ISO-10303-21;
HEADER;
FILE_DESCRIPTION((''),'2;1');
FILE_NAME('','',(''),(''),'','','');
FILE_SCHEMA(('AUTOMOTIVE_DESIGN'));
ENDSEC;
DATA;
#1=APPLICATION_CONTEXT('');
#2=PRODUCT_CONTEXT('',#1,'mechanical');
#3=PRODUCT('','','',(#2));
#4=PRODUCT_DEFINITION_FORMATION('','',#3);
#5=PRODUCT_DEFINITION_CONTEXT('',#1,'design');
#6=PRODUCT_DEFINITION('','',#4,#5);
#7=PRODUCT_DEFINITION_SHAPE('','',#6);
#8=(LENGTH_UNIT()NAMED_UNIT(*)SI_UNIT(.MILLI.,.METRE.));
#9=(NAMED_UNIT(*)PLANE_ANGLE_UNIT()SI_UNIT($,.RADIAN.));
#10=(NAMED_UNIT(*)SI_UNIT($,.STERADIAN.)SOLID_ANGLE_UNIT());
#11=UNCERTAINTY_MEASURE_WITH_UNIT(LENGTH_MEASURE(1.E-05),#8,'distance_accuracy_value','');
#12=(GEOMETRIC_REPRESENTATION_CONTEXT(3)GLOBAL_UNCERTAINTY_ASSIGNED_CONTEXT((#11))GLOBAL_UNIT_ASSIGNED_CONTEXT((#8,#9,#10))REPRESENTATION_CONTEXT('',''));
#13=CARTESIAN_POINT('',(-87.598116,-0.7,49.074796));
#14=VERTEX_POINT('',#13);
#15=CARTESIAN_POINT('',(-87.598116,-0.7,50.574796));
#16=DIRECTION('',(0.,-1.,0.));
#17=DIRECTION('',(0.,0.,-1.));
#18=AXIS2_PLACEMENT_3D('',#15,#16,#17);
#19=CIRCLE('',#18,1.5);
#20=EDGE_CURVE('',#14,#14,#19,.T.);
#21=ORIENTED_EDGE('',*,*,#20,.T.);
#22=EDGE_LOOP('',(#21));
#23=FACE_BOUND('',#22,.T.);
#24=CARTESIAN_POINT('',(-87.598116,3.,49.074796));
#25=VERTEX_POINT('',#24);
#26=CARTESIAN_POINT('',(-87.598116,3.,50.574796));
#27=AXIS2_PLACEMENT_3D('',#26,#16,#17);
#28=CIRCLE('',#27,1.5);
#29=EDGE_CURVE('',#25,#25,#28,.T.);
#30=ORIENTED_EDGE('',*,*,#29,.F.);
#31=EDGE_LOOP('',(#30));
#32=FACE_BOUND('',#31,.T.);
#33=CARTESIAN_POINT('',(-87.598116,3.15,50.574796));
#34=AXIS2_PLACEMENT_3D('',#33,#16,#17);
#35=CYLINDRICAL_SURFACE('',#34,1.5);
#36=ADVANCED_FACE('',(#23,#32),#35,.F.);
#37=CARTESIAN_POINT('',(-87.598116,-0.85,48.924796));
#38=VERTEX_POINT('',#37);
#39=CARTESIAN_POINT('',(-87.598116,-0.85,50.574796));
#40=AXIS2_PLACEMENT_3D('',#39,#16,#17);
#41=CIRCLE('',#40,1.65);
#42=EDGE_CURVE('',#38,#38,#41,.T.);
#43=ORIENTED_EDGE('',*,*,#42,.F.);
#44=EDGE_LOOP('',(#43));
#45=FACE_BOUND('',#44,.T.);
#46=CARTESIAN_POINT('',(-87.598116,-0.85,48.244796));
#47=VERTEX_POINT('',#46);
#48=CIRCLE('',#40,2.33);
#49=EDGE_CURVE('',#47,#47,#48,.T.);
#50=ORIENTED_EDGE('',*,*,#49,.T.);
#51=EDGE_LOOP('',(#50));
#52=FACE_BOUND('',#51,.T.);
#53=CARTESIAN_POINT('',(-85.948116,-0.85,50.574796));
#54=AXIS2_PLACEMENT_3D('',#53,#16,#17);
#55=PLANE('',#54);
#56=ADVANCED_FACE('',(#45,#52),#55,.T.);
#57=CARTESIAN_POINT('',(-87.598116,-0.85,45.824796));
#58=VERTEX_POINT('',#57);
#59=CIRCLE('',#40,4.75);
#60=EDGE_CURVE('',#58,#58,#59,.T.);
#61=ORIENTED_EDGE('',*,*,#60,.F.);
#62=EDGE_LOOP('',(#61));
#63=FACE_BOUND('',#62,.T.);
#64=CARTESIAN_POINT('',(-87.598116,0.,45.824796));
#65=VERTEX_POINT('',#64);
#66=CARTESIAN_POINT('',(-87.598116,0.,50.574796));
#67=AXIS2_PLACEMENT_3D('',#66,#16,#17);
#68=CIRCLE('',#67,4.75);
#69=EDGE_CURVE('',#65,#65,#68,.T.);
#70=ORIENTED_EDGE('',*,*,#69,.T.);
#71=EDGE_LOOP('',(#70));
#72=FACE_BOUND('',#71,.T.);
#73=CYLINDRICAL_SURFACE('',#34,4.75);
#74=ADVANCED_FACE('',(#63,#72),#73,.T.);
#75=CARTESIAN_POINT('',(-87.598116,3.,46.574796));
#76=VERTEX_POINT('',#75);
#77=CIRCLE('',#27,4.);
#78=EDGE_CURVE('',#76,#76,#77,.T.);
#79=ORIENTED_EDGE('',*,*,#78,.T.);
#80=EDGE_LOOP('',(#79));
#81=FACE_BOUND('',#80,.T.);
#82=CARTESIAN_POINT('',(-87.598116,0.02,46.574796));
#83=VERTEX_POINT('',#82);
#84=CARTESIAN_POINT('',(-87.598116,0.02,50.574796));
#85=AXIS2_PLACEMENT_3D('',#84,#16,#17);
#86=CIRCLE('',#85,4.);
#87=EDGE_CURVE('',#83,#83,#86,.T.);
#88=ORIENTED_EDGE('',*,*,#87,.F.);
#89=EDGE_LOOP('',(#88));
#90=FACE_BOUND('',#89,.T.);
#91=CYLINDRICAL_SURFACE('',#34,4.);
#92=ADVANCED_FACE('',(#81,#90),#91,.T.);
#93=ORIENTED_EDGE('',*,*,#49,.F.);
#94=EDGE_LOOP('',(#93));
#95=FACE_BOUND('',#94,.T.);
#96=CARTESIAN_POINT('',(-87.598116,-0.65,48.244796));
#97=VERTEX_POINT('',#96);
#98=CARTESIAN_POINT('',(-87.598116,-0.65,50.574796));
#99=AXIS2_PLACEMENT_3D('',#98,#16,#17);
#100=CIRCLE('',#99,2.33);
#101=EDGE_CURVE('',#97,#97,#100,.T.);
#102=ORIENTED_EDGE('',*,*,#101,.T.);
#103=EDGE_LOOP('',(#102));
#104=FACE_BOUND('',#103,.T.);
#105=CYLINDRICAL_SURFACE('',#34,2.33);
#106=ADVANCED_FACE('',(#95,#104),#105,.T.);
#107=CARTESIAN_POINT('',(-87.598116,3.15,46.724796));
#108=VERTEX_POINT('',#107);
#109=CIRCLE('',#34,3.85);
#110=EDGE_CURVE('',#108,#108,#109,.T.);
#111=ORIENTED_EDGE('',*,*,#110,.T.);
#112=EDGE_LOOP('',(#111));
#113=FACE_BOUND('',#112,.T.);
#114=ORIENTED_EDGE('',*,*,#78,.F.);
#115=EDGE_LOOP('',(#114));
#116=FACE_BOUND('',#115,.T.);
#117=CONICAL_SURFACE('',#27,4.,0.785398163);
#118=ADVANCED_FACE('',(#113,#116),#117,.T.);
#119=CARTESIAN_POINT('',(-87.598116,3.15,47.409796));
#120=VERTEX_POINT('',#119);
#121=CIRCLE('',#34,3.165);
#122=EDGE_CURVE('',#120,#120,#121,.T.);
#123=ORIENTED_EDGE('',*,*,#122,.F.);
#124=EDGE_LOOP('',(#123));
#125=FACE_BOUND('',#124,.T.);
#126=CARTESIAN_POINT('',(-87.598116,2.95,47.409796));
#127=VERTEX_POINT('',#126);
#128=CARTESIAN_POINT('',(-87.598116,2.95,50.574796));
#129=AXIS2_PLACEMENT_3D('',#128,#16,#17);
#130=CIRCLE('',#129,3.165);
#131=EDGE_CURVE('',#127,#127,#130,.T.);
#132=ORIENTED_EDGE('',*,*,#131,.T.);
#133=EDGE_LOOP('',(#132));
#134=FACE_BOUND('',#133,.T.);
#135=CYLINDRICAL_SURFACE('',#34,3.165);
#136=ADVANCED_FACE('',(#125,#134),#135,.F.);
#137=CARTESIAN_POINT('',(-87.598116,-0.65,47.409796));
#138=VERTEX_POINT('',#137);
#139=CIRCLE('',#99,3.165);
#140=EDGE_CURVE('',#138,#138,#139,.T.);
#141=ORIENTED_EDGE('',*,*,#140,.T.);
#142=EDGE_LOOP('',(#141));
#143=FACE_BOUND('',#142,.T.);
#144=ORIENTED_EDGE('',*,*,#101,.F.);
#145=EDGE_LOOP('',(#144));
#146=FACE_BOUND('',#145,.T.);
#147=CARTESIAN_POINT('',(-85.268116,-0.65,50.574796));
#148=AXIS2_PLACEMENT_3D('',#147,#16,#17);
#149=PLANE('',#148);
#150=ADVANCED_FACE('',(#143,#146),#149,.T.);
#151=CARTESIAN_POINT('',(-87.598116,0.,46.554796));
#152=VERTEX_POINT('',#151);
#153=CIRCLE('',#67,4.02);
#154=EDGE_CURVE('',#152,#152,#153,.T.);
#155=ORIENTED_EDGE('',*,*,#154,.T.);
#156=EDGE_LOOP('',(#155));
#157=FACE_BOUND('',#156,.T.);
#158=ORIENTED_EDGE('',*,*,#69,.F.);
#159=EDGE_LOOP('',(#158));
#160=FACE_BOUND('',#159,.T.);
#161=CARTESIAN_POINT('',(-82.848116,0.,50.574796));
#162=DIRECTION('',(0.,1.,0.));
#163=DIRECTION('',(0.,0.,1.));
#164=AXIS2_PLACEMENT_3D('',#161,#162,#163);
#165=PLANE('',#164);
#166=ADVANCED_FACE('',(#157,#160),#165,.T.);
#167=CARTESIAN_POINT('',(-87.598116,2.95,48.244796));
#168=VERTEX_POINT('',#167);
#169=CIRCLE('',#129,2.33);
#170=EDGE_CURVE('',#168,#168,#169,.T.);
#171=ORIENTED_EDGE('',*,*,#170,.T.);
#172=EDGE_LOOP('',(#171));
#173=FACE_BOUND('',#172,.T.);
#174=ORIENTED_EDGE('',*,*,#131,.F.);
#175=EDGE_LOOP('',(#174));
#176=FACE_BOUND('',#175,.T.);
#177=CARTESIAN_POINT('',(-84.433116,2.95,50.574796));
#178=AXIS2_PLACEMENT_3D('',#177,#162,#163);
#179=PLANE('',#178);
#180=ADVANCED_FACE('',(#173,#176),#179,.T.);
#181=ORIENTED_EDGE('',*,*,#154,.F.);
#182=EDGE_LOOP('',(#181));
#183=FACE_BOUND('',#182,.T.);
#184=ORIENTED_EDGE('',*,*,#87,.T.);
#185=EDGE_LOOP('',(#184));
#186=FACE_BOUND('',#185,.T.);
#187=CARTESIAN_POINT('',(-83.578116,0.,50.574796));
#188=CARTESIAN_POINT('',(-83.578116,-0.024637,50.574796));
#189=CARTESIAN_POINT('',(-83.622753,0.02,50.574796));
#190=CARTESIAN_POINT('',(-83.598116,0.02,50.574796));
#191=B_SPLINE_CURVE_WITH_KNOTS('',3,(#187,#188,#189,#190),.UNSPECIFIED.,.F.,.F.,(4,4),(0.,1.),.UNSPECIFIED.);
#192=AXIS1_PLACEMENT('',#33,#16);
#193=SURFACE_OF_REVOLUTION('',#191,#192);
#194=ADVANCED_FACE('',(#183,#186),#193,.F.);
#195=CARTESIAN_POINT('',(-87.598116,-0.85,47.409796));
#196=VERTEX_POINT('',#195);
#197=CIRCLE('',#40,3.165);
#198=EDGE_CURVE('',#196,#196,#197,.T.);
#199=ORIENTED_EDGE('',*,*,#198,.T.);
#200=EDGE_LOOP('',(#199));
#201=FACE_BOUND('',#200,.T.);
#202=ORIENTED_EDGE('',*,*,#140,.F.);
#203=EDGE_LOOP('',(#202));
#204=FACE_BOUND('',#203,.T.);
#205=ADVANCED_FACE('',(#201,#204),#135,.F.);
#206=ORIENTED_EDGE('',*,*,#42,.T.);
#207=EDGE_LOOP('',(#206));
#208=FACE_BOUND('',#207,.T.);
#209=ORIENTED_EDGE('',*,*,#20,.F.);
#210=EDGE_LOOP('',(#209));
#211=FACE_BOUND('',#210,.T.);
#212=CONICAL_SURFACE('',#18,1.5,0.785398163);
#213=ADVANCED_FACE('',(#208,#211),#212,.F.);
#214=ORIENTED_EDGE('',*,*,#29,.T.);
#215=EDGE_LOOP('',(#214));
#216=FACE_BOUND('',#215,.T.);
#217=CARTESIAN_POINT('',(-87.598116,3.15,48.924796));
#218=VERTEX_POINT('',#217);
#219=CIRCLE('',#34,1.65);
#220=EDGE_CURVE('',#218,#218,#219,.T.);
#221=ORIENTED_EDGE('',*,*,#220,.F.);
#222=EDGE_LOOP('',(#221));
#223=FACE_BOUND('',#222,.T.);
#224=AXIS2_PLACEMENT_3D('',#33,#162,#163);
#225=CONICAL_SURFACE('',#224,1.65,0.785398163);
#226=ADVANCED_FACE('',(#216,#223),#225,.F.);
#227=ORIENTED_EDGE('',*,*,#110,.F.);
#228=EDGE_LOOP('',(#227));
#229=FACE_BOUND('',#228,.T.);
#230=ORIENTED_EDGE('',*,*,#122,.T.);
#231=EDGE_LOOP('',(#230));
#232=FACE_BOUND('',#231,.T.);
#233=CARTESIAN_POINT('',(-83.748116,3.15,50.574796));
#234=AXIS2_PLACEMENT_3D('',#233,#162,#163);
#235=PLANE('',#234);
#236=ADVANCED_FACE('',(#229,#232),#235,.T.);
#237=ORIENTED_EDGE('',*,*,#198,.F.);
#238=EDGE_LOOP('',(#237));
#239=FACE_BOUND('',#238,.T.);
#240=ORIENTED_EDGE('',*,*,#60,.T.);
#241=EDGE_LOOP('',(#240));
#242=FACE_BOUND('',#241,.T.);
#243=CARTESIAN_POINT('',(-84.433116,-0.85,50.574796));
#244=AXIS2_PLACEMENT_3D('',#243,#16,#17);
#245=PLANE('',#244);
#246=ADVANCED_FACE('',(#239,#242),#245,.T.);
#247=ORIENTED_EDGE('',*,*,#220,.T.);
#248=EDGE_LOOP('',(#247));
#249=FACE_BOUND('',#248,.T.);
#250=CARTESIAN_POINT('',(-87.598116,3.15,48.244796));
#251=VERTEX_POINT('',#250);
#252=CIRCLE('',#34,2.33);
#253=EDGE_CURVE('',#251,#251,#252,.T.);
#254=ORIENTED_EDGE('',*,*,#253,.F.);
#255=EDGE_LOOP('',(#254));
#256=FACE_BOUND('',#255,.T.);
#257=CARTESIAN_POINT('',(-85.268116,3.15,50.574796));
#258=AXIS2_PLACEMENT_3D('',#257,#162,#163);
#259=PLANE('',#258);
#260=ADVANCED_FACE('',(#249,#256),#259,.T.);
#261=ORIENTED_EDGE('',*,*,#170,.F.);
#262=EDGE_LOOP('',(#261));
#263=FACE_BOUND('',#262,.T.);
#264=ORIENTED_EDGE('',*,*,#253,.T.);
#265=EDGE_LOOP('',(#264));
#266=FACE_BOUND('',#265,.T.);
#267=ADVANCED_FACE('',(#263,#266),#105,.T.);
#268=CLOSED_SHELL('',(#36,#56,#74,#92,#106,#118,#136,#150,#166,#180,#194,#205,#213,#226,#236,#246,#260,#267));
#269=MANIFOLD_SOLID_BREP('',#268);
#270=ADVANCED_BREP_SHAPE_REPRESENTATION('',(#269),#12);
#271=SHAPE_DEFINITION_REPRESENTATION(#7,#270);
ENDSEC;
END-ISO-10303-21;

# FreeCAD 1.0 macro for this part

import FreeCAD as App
import Part
import Sketcher
from FreeCAD import Vector

doc = App.newDocument("Part")
body = doc.addObject("PartDesign::Body", "Body")

# Sketch on XY plane
sketch1 = body.newObject("Sketcher::SketchObject", "Sketch")
sketch1.AttachmentSupport = (doc.getObject("XY_Plane"), [""])
sketch1.MapMode = "FlatFace"
sketch1.AttachmentOffset = App.Placement(Vector(0, 0, 50.574796), App.Rotation())
sketch1.addGeometry([
    Part.LineSegment(Vector(-85.268116, -0.65, 0), Vector(-84.433116, -0.65, 0)),  # 0
    Part.LineSegment(Vector(-84.433116, -0.65, 0), Vector(-84.433116, -0.85, 0)),  # 1
    Part.LineSegment(Vector(-84.433116, -0.85, 0), Vector(-82.848116, -0.85, 0)),  # 2
    Part.LineSegment(Vector(-82.848116, -0.85, 0), Vector(-82.848116, 0, 0)),  # 3
    Part.LineSegment(Vector(-82.848116, 0, 0), Vector(-83.578116, 0, 0)),  # 4
    Part.BSplineCurve([Vector(-83.578116, 0, 0), Vector(-83.578116, -0.024637, 0), Vector(-83.622753, 0.02, 0), Vector(-83.598116, 0.02, 0)], [4, 4], [0, 1], False, 3, [1, 1, 1, 1], False),  # 5
    Part.LineSegment(Vector(-83.598116, 0.02, 0), Vector(-83.598116, 3, 0)),  # 6
    Part.LineSegment(Vector(-83.598116, 3, 0), Vector(-83.748116, 3.15, 0)),  # 7
    Part.LineSegment(Vector(-83.748116, 3.15, 0), Vector(-84.433116, 3.15, 0)),  # 8
    Part.LineSegment(Vector(-84.433116, 3.15, 0), Vector(-84.433116, 2.95, 0)),  # 9
    Part.LineSegment(Vector(-84.433116, 2.95, 0), Vector(-85.268116, 2.95, 0)),  # 10
    Part.LineSegment(Vector(-85.268116, 2.95, 0), Vector(-85.268116, 3.15, 0)),  # 11
    Part.LineSegment(Vector(-85.268116, 3.15, 0), Vector(-85.948116, 3.15, 0)),  # 12
    Part.LineSegment(Vector(-85.948116, 3.15, 0), Vector(-86.098116, 3, 0)),  # 13
    Part.LineSegment(Vector(-86.098116, 3, 0), Vector(-86.098116, -0.7, 0)),  # 14
    Part.LineSegment(Vector(-86.098116, -0.7, 0), Vector(-85.948116, -0.85, 0)),  # 15
    Part.LineSegment(Vector(-85.948116, -0.85, 0), Vector(-85.268116, -0.85, 0)),  # 16
    Part.LineSegment(Vector(-85.268116, -0.85, 0), Vector(-85.268116, -0.65, 0)),  # 17
], False)
sketch1.addGeometry(Part.LineSegment(Vector(-87.598116, 3.15, 0), Vector(-87.598116, -0.85, 0)), True)  # axis
sketch1.addConstraint([
    Sketcher.Constraint("Block", 5),
    Sketcher.Constraint("Coincident", 0, 2, 1, 1),
    Sketcher.Constraint("Coincident", 1, 2, 2, 1),
    Sketcher.Constraint("Coincident", 2, 2, 3, 1),
    Sketcher.Constraint("Coincident", 3, 2, 4, 1),
    Sketcher.Constraint("Coincident", 4, 2, 5, 1),
    Sketcher.Constraint("Coincident", 5, 2, 6, 1),
    Sketcher.Constraint("Coincident", 6, 2, 7, 1),
    Sketcher.Constraint("Coincident", 7, 2, 8, 1),
    Sketcher.Constraint("Coincident", 8, 2, 9, 1),
    Sketcher.Constraint("Coincident", 9, 2, 10, 1),
    Sketcher.Constraint("Coincident", 10, 2, 11, 1),
    Sketcher.Constraint("Coincident", 11, 2, 12, 1),
    Sketcher.Constraint("Coincident", 12, 2, 13, 1),
    Sketcher.Constraint("Coincident", 13, 2, 14, 1),
    Sketcher.Constraint("Coincident", 14, 2, 15, 1),
    Sketcher.Constraint("Coincident", 15, 2, 16, 1),
    Sketcher.Constraint("Coincident", 16, 2, 17, 1),
    Sketcher.Constraint("Coincident", 17, 2, 0, 1),
    Sketcher.Constraint("Horizontal", 0),
    Sketcher.Constraint("Vertical", 1),
    Sketcher.Constraint("Horizontal", 2),
    Sketcher.Constraint("Vertical", 3),
    Sketcher.Constraint("Horizontal", 4),
    Sketcher.Constraint("Vertical", 6),
    Sketcher.Constraint("Horizontal", 8),
    Sketcher.Constraint("Vertical", 9),
    Sketcher.Constraint("Horizontal", 10),
    Sketcher.Constraint("Vertical", 11),
    Sketcher.Constraint("Horizontal", 12),
    Sketcher.Constraint("Vertical", 14),
    Sketcher.Constraint("Horizontal", 16),
    Sketcher.Constraint("Vertical", 17),
    Sketcher.Constraint("Vertical", 18),
    Sketcher.Constraint("Perpendicular", 7, 13),
    Sketcher.Constraint("Perpendicular", 13, 15),
    Sketcher.Constraint("Horizontal", 8, 2, 11, 2),
    Sketcher.Constraint("Horizontal", 6, 2, 13, 2),
    Sketcher.Constraint("Horizontal", 2, 2, 15, 2),
    Sketcher.Constraint("Horizontal", 12, 2, 18, 1),
    Sketcher.Constraint("Horizontal", 16, 2, 18, 2),
    Sketcher.Constraint("Vertical", 1, 2, 8, 2),
    Sketcher.Constraint("Vertical", 12, 2, 15, 2),
    Sketcher.Constraint("Vertical", 11, 2, 16, 2),
    Sketcher.Constraint("Equal", 1, 9),
    Sketcher.Constraint("Equal", 7, 13),
    Sketcher.Constraint("DistanceY", 18, 2, 18, 1, 4.0),
    Sketcher.Constraint("DistanceY", 1, 2, 1, 1, 0.2),
    Sketcher.Constraint("DistanceY", 14, 2, 14, 1, 3.7),
    Sketcher.Constraint("DistanceY", -1, 1, 6, 2, 3.0),
    Sketcher.Constraint("DistanceX", 4, 2, 4, 1, 0.73),
    Sketcher.Constraint("DistanceX", 12, 2, 12, 1, 0.68),
    Sketcher.Constraint("DistanceX", 12, 2, 7, 2, 2.2),
    Sketcher.Constraint("DistanceX", 18, 1, 13, 2, 1.5),
    Sketcher.Constraint("DistanceX", 0, 1, 0, 2, 0.835),
])
revolution = body.newObject("PartDesign::Revolution", "Revolution")
revolution.Profile = sketch1
revolution.ReferenceAxis = (sketch1, ["Axis0"])
revolution.Angle = 360

doc.recompute()
